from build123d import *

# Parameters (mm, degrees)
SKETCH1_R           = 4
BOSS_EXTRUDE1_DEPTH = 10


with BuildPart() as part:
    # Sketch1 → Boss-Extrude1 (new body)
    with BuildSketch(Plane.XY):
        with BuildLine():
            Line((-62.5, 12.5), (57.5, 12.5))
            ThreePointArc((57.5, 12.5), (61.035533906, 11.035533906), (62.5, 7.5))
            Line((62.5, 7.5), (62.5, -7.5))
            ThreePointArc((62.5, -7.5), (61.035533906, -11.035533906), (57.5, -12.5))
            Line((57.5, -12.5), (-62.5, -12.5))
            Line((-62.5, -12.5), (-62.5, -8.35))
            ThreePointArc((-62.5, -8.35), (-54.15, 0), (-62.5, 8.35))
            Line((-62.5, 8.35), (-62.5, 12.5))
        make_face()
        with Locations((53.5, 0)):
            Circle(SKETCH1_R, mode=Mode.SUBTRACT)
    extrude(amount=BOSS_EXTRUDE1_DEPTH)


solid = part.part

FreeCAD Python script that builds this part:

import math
import FreeCAD as App
import Part
import Sketcher
from FreeCAD import Vector

doc = App.newDocument("Part")
body = doc.addObject("PartDesign::Body", "Body")

sketch1 = body.newObject("Sketcher::SketchObject", "Sketch")
sketch1.AttachmentSupport = (doc.getObject("XY_Plane"), [""])
sketch1.MapMode = "FlatFace"
sketch1.addGeometry(Part.LineSegment(Vector(57.5, 12.5, 0), Vector(-62.5, 12.5, 0)), False)
sketch1.addGeometry(Part.LineSegment(Vector(-62.5, 12.5, 0), Vector(-62.5, 8.3, 0)), False)
sketch1.addGeometry(Part.ArcOfCircle(Part.Circle(Vector(-62.5, 0, 0), Vector(0, 0, 1), 8.3), math.radians(-90), math.radians(90)), False)
sketch1.addGeometry(Part.LineSegment(Vector(-62.5, -8.3, 0), Vector(-62.5, -12.5, 0)), False)
sketch1.addGeometry(Part.LineSegment(Vector(-62.5, -12.5, 0), Vector(57.5, -12.5, 0)), False)
sketch1.addGeometry(Part.ArcOfCircle(Part.Circle(Vector(57.5, -7.5, 0), Vector(0, 0, 1), 5), math.radians(-90), math.radians(0)), False)
sketch1.addGeometry(Part.LineSegment(Vector(62.5, -7.5, 0), Vector(62.5, 7.5, 0)), False)
sketch1.addGeometry(Part.ArcOfCircle(Part.Circle(Vector(57.5, 7.5, 0), Vector(0, 0, 1), 5), math.radians(0), math.radians(90)), False)
sketch1.addGeometry(Part.Circle(Vector(53.5, 0, 0), Vector(0, 0, 1), 4), False)
sketch1.addConstraint(Sketcher.Constraint("Coincident", 0, 2, 1, 1))
sketch1.addConstraint(Sketcher.Constraint("Coincident", 1, 2, 2, 2))
sketch1.addConstraint(Sketcher.Constraint("Coincident", 2, 1, 3, 1))
sketch1.addConstraint(Sketcher.Constraint("Coincident", 3, 2, 4, 1))
sketch1.addConstraint(Sketcher.Constraint("Tangent", 4, 2, 5, 1))
sketch1.addConstraint(Sketcher.Constraint("Tangent", 5, 2, 6, 1))
sketch1.addConstraint(Sketcher.Constraint("Tangent", 6, 2, 7, 1))
sketch1.addConstraint(Sketcher.Constraint("Tangent", 7, 2, 0, 1))
sketch1.addConstraint(Sketcher.Constraint("Horizontal", 0))
sketch1.addConstraint(Sketcher.Constraint("Vertical", 1))
sketch1.addConstraint(Sketcher.Constraint("Vertical", 3))
sketch1.addConstraint(Sketcher.Constraint("Horizontal", 4))
sketch1.addConstraint(Sketcher.Constraint("Vertical", 6))
sketch1.addConstraint(Sketcher.Constraint("Equal", 5, 7))
sketch1.addConstraint(Sketcher.Constraint("Symmetric", 1, 2, 2, 1, -1))
sketch1.addConstraint(Sketcher.Constraint("PointOnObject", 8, 3, -1))
sketch1.addConstraint(Sketcher.Constraint("Vertical", 2, 3, 0, 2))
sketch1.addConstraint(Sketcher.Constraint("Equal", 1, 3))
sketch1.addConstraint(Sketcher.Constraint("Diameter", 8, 8.0))
sketch1.addConstraint(Sketcher.Constraint("Radius", 5, 5.0))
sketch1.addConstraint(Sketcher.Constraint("DistanceX", 0, 2, 0, 1, 120.0))
sketch1.addConstraint(Sketcher.Constraint("DistanceY", 6, 1, 6, 2, 15.0))
sketch1.addConstraint(Sketcher.Constraint("Radius", 2, 8.35))
sketch1.addConstraint(Sketcher.Constraint("DistanceX", 8, 3, 5, 3, 4.0))
sketch1.addConstraint(Sketcher.Constraint("DistanceX", 2, 3, -1, 1, 62.5))
pad1 = body.newObject("PartDesign::Pad", "Pad")
pad1.Profile = sketch1
pad1.Length = 10

doc.recompute()
